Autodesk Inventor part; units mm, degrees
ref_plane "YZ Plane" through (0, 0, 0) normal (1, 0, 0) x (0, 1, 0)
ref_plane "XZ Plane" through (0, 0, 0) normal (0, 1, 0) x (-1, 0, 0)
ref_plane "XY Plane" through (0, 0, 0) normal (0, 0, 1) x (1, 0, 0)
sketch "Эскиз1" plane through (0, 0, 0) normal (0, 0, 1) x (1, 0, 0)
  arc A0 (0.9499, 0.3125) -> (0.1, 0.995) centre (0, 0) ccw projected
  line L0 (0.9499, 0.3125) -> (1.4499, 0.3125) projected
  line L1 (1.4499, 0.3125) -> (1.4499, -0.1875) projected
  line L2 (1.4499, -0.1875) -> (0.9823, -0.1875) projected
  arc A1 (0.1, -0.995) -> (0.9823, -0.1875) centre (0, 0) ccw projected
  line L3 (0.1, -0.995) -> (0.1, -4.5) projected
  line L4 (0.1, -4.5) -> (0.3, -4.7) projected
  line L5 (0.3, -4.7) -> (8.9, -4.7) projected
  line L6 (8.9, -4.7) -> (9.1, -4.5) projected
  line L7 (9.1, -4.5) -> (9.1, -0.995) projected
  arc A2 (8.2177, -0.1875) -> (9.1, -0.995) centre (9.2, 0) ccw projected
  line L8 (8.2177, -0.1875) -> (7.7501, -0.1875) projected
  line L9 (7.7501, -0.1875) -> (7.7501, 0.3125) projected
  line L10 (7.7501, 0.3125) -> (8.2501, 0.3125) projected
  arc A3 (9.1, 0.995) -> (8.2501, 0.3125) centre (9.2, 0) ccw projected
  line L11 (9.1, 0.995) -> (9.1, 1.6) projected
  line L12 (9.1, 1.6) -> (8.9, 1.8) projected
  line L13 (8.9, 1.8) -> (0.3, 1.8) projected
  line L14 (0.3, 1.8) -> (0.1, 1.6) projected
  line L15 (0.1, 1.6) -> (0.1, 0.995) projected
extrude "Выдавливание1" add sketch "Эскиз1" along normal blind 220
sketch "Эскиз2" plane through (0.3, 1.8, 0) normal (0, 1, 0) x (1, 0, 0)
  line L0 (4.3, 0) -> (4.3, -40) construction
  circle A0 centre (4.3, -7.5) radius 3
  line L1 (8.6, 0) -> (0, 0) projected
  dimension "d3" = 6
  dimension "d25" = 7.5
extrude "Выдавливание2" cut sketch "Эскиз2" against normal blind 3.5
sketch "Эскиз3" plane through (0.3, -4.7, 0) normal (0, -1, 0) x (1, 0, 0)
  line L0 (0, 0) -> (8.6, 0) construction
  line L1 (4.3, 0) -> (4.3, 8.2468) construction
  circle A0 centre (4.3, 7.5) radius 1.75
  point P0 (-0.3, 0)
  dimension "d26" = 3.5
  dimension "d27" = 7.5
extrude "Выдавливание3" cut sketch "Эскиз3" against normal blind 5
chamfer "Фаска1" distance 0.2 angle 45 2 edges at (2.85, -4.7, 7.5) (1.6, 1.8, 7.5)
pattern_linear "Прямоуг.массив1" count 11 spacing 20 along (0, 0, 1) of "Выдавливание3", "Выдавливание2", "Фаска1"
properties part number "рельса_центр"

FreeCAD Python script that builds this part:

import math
import FreeCAD as App
import Part
import Sketcher

V = App.Vector
Q = App.Units.Quantity


def edges_at(feature, points):
    """Names of the edges that pass closest to the given points."""
    edges = feature.Shape.Edges
    near = lambda p: min(range(len(edges)), key=lambda i: edges[i].distToShape(Part.Vertex(*p))[0])
    return sorted({f"Edge{near(p) + 1}" for p in points})

doc = App.newDocument("Part")
body = doc.addObject("PartDesign::Body", "Body")

# Sketch on XY plane
sketch1 = body.newObject("Sketcher::SketchObject", "Sketch")
sketch1.AttachmentSupport = (doc.getObject("XY_Plane"), [""])
sketch1.MapMode = "FlatFace"
sketch1.addGeometry(Part.ArcOfCircle(Part.Circle(V(0, 0, 0), V(0, 0, 1), 1), math.radians(18), math.radians(84)), False)
sketch1.addGeometry(Part.LineSegment(V(0.95, 0.31, 0), V(1.45, 0.31, 0)), False)
sketch1.addGeometry(Part.LineSegment(V(1.45, 0.31, 0), V(1.45, -0.19, 0)), False)
sketch1.addGeometry(Part.LineSegment(V(1.45, -0.19, 0), V(0.98, -0.19, 0)), False)
sketch1.addGeometry(Part.ArcOfCircle(Part.Circle(V(0, 0, 0), V(0, 0, 1), 1), math.radians(-84), math.radians(-11)), False)
sketch1.addGeometry(Part.LineSegment(V(0.1, -0.99, 0), V(0.1, -4.5, 0)), False)
sketch1.addGeometry(Part.LineSegment(V(0.1, -4.5, 0), V(0.3, -4.7, 0)), False)
sketch1.addGeometry(Part.LineSegment(V(0.3, -4.7, 0), V(8.9, -4.7, 0)), False)
sketch1.addGeometry(Part.LineSegment(V(8.9, -4.7, 0), V(9.1, -4.5, 0)), False)
sketch1.addGeometry(Part.LineSegment(V(9.1, -4.5, 0), V(9.1, -0.99, 0)), False)
sketch1.addGeometry(Part.ArcOfCircle(Part.Circle(V(9.2, 0, 0), V(0, 0, 1), 1), math.radians(-169), math.radians(-96)), False)
sketch1.addGeometry(Part.LineSegment(V(8.22, -0.19, 0), V(7.75, -0.19, 0)), False)
sketch1.addGeometry(Part.LineSegment(V(7.75, -0.19, 0), V(7.75, 0.31, 0)), False)
sketch1.addGeometry(Part.LineSegment(V(7.75, 0.31, 0), V(8.25, 0.31, 0)), False)
sketch1.addGeometry(Part.ArcOfCircle(Part.Circle(V(9.2, 0, 0), V(0, 0, 1), 1), math.radians(96), math.radians(162)), False)
sketch1.addGeometry(Part.LineSegment(V(9.1, 0.99, 0), V(9.1, 1.6, 0)), False)
sketch1.addGeometry(Part.LineSegment(V(9.1, 1.6, 0), V(8.9, 1.8, 0)), False)
sketch1.addGeometry(Part.LineSegment(V(8.9, 1.8, 0), V(0.3, 1.8, 0)), False)
sketch1.addGeometry(Part.LineSegment(V(0.3, 1.8, 0), V(0.1, 1.6, 0)), False)
sketch1.addGeometry(Part.LineSegment(V(0.1, 1.6, 0), V(0.1, 0.99, 0)), False)
sketch1.addConstraint(Sketcher.Constraint("Coincident", 0, 1, 1, 1))
sketch1.addConstraint(Sketcher.Constraint("Coincident", 1, 2, 2, 1))
sketch1.addConstraint(Sketcher.Constraint("Coincident", 2, 2, 3, 1))
sketch1.addConstraint(Sketcher.Constraint("Coincident", 3, 2, 4, 2))
sketch1.addConstraint(Sketcher.Constraint("Coincident", 4, 1, 5, 1))
sketch1.addConstraint(Sketcher.Constraint("Coincident", 5, 2, 6, 1))
sketch1.addConstraint(Sketcher.Constraint("Coincident", 6, 2, 7, 1))
sketch1.addConstraint(Sketcher.Constraint("Coincident", 7, 2, 8, 1))
sketch1.addConstraint(Sketcher.Constraint("Coincident", 8, 2, 9, 1))
sketch1.addConstraint(Sketcher.Constraint("Coincident", 9, 2, 10, 2))
sketch1.addConstraint(Sketcher.Constraint("Coincident", 10, 1, 11, 1))
sketch1.addConstraint(Sketcher.Constraint("Coincident", 11, 2, 12, 1))
sketch1.addConstraint(Sketcher.Constraint("Coincident", 12, 2, 13, 1))
sketch1.addConstraint(Sketcher.Constraint("Coincident", 13, 2, 14, 2))
sketch1.addConstraint(Sketcher.Constraint("Coincident", 14, 1, 15, 1))
sketch1.addConstraint(Sketcher.Constraint("Coincident", 15, 2, 16, 1))
sketch1.addConstraint(Sketcher.Constraint("Coincident", 16, 2, 17, 1))
sketch1.addConstraint(Sketcher.Constraint("Coincident", 17, 2, 18, 1))
sketch1.addConstraint(Sketcher.Constraint("Coincident", 18, 2, 19, 1))
sketch1.addConstraint(Sketcher.Constraint("Coincident", 19, 2, 0, 2))
sketch1.addConstraint(Sketcher.Constraint("Horizontal", 1))
sketch1.addConstraint(Sketcher.Constraint("Vertical", 2))
sketch1.addConstraint(Sketcher.Constraint("Horizontal", 3))
sketch1.addConstraint(Sketcher.Constraint("Vertical", 5))
sketch1.addConstraint(Sketcher.Constraint("Horizontal", 7))
sketch1.addConstraint(Sketcher.Constraint("Vertical", 9))
sketch1.addConstraint(Sketcher.Constraint("Horizontal", 11))
sketch1.addConstraint(Sketcher.Constraint("Vertical", 12))
sketch1.addConstraint(Sketcher.Constraint("Horizontal", 13))
sketch1.addConstraint(Sketcher.Constraint("Vertical", 15))
sketch1.addConstraint(Sketcher.Constraint("Horizontal", 17))
sketch1.addConstraint(Sketcher.Constraint("Vertical", 19))
sketch1.addConstraint(Sketcher.Constraint("Coincident", 0, 3, -1, 1))
sketch1.addConstraint(Sketcher.Constraint("Coincident", 4, 3, -1, 1))
sketch1.addConstraint(Sketcher.Constraint("Coincident", 14, 3, 10, 3))
sketch1.addConstraint(Sketcher.Constraint("Equal", 0, 4))
sketch1.addConstraint(Sketcher.Constraint("Equal", 4, 10))
sketch1.addConstraint(Sketcher.Constraint("Equal", 10, 14))
sketch1.addConstraint(Sketcher.Constraint("Symmetric", 9, 2, 14, 1, -1))
sketch1.addConstraint(Sketcher.Constraint("Perpendicular", 6, 8))
sketch1.addConstraint(Sketcher.Constraint("Perpendicular", 8, 16))
sketch1.addConstraint(Sketcher.Constraint("Perpendicular", 16, 18))
sketch1.addConstraint(Sketcher.Constraint("Horizontal", 5, 2, 8, 2))
sketch1.addConstraint(Sketcher.Constraint("Horizontal", 4, 1, 9, 2))
sketch1.addConstraint(Sketcher.Constraint("Horizontal", 3, 2, 10, 1))
sketch1.addConstraint(Sketcher.Constraint("Horizontal", 1, 2, 12, 2))
sketch1.addConstraint(Sketcher.Constraint("Horizontal", 15, 2, 18, 2))
sketch1.addConstraint(Sketcher.Constraint("Horizontal", 14, 1, 19, 2))
sketch1.addConstraint(Sketcher.Constraint("Vertical", 7, 2, 16, 2))
sketch1.addConstraint(Sketcher.Constraint("Vertical", 6, 2, 17, 2))
sketch1.addConstraint(Sketcher.Constraint("Equal", 3, 11))
sketch1.addConstraint(Sketcher.Constraint("Equal", 13, 2))
sketch1.addConstraint(Sketcher.Constraint("Radius", 0, Q("1 mm")))
sketch1.addConstraint(Sketcher.Constraint("DistanceX", 1, 1, 1, 2, Q("0.5 mm")))
sketch1.addConstraint(Sketcher.Constraint("DistanceX", 7, 1, 7, 2, Q("8.6 mm")))
sketch1.addConstraint(Sketcher.Constraint("DistanceX", -1, 1, 10, 3, Q("9.2 mm")))
sketch1.addConstraint(Sketcher.Constraint("DistanceX", -1, 1, 4, 1, Q("0.1 mm")))
sketch1.addConstraint(Sketcher.Constraint("DistanceY", 5, 2, -1, 1, Q("4.5 mm")))
sketch1.addConstraint(Sketcher.Constraint("DistanceY", -1, 1, 15, 2, Q("1.6 mm")))
sketch1.addConstraint(Sketcher.Constraint("DistanceX", -1, 1, 0, 1, Q("0.95 mm")))
pad1 = body.newObject("PartDesign::Pad", "Pad")
pad1.Profile = sketch1
pad1.Length = 220

# Sketch on XZ plane
sketch2 = body.newObject("Sketcher::SketchObject", "Sketch001")
sketch2.AttachmentSupport = (doc.getObject("XZ_Plane"), [""])
sketch2.MapMode = "FlatFace"
sketch2.AttachmentOffset = App.Placement(V(0, 0, -1.8), App.Rotation())
sketch2.addGeometry(Part.Circle(V(4.6, 7.5, 0), V(0, 0, 1), 3), False)
sketch2.addConstraint(Sketcher.Constraint("Diameter", 0, Q("6 mm")))
sketch2.addConstraint(Sketcher.Constraint("DistanceY", -1, 1, 0, 3, Q("7.5 mm")))
sketch2.addConstraint(Sketcher.Constraint("DistanceX", -1, 1, 0, 3, Q("4.6 mm")))
pocket1 = body.newObject("PartDesign::Pocket", "Pocket")
pocket1.Profile = sketch2
pocket1.Length = 3.5
pocket1.Reversed = True

# Sketch on XZ plane
sketch3 = body.newObject("Sketcher::SketchObject", "Sketch002")
sketch3.AttachmentSupport = (doc.getObject("XZ_Plane"), [""])
sketch3.MapMode = "FlatFace"
sketch3.AttachmentOffset = App.Placement(V(0, 0, 4.7), App.Rotation())
sketch3.addGeometry(Part.Circle(V(4.6, 7.5, 0), V(0, 0, 1), 1.8), False)
sketch3.addConstraint(Sketcher.Constraint("Diameter", 0, Q("3.5 mm")))
sketch3.addConstraint(Sketcher.Constraint("DistanceY", -1, 1, 0, 3, Q("7.5 mm")))
sketch3.addConstraint(Sketcher.Constraint("DistanceX", -1, 1, 0, 3, Q("4.6 mm")))
pocket2 = body.newObject("PartDesign::Pocket", "Pocket001")
pocket2.Profile = sketch3
pocket2.Length = 5
doc.recompute()

chamfer = body.newObject("PartDesign::Chamfer", "Chamfer")
chamfer.Base = (pocket2, edges_at(pocket2, [(2.85, -4.7, 7.5), (1.6, 1.8, 7.5)]))
chamfer.Size = 0.2
doc.recompute()

linearpattern = body.newObject("PartDesign::LinearPattern", "LinearPattern")
linearpattern.Originals = [pocket2, pocket1, chamfer]
linearpattern.Direction = (doc.getObject("Z_Axis"), [""])
linearpattern.Mode = "offset"
linearpattern.Offset = 20
linearpattern.Occurrences = 11
body.Tip = linearpattern

doc.recompute()
